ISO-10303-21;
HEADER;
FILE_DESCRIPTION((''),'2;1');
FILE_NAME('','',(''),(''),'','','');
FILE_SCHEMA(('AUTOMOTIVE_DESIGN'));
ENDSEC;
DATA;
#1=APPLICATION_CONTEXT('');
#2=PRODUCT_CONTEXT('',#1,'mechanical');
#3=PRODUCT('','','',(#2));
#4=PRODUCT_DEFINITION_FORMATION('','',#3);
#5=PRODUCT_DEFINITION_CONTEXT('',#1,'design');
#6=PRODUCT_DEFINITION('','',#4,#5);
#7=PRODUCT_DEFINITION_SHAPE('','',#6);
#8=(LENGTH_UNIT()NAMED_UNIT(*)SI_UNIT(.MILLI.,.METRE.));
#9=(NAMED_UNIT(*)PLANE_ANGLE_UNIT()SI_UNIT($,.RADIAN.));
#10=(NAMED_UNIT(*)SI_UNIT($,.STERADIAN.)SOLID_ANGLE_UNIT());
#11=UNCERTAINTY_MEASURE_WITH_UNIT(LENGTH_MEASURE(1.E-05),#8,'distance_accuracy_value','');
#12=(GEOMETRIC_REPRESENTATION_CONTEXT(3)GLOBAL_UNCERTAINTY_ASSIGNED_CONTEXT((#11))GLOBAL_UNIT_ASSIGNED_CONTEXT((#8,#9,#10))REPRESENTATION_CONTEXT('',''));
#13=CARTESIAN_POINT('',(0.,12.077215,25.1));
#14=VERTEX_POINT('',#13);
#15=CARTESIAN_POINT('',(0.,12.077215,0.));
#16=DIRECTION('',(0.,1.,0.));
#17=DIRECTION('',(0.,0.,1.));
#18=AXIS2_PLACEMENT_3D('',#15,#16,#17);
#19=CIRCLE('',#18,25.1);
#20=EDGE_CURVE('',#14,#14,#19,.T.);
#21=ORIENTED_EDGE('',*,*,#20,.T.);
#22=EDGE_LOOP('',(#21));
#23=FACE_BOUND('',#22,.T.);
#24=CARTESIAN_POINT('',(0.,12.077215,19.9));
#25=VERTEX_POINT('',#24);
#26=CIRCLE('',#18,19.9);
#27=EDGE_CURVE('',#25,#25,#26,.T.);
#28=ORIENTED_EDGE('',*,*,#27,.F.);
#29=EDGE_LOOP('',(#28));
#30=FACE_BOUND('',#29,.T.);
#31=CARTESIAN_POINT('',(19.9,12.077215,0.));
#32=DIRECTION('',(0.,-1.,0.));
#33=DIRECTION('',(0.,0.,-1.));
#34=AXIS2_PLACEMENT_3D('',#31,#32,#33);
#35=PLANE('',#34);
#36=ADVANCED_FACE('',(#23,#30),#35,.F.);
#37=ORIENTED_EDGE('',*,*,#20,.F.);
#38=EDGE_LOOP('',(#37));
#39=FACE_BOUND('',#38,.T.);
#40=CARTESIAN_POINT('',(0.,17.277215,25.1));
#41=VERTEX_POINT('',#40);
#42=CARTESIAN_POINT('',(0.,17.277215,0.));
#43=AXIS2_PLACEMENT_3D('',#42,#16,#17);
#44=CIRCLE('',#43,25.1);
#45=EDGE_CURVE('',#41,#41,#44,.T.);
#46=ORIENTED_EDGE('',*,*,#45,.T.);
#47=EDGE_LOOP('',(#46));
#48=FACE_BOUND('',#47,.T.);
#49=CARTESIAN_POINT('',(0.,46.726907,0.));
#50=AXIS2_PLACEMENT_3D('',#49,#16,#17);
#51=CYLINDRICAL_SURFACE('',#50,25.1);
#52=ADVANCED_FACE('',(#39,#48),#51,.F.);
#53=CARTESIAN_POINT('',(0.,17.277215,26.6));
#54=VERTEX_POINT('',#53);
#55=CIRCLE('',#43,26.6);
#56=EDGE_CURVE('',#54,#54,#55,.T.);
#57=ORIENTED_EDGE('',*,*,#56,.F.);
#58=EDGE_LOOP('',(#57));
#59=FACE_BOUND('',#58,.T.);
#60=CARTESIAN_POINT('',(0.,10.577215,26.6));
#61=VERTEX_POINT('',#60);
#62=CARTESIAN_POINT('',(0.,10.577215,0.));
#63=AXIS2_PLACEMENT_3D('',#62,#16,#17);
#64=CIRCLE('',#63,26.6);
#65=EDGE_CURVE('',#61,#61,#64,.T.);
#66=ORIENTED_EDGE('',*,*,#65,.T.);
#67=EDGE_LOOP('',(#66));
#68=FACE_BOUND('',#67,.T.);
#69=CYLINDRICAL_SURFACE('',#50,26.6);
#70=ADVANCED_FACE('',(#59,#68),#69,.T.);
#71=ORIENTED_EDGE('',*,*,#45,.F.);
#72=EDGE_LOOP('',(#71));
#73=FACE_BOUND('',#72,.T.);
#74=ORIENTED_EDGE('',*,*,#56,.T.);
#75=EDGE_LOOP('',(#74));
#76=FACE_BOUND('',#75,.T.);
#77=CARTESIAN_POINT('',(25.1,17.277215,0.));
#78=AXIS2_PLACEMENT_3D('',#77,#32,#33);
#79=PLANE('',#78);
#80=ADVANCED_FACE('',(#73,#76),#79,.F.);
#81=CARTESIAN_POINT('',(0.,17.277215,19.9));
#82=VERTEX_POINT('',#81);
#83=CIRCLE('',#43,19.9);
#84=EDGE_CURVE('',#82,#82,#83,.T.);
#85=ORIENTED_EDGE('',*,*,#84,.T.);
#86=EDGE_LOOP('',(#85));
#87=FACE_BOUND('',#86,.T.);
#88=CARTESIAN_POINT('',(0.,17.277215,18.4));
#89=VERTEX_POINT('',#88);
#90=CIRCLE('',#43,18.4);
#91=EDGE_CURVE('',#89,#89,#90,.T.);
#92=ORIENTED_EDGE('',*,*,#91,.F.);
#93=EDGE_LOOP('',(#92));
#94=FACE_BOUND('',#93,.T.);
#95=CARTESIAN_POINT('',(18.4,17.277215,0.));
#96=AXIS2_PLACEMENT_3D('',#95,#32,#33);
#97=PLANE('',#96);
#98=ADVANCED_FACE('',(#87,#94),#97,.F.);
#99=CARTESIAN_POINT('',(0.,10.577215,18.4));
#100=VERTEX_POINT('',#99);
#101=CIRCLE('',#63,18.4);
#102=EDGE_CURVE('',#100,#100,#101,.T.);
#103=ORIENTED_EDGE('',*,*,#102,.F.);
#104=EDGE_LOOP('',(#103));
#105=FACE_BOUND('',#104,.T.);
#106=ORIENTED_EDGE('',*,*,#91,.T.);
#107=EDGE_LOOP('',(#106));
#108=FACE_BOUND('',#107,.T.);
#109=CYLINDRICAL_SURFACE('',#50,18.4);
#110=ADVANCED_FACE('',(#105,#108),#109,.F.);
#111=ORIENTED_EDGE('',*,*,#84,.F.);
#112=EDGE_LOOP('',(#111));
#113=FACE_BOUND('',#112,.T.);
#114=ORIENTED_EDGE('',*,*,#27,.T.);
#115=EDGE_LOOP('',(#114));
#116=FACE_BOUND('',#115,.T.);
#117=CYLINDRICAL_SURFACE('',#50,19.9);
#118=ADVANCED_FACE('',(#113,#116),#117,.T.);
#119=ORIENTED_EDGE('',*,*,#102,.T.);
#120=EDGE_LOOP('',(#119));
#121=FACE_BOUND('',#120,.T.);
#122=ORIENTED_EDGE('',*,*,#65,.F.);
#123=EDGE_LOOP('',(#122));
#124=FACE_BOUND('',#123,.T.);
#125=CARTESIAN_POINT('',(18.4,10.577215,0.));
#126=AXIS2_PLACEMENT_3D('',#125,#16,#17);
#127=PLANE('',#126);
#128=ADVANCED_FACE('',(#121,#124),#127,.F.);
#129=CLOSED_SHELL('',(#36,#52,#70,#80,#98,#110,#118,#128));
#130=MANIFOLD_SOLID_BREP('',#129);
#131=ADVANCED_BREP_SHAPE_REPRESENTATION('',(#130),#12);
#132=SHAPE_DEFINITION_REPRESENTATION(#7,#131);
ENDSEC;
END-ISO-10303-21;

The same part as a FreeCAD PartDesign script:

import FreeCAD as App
import Part
import Sketcher

V = App.Vector
Q = App.Units.Quantity


def add_polygon(sketch, points):
    """Adds a closed chain of lines whose ends are joined by coincident constraints."""
    first, n = sketch.GeometryCount, len(points)
    for a, b in zip(points, points[1:] + points[:1]):
        sketch.addGeometry(Part.LineSegment(App.Vector(*a, 0), App.Vector(*b, 0)), False)
    for i in range(n):
        sketch.addConstraint(Sketcher.Constraint("Coincident", first + i, 2, first + (i + 1) % n, 1))

doc = App.newDocument("Part")
body = doc.addObject("PartDesign::Body", "Body")

# Sketch on XY plane
sketch1 = doc.addObject("Sketcher::SketchObject", "Sketch")
body.addObject(sketch1)
sketch1.AttachmentSupport = (doc.XY_Plane, [""])
sketch1.MapMode = "FlatFace"
add_polygon(sketch1, [(19.9, 12.1), (19.9, 17.3), (18.4, 17.3), (18.4, 10.6), (26.6, 10.6), (26.6, 17.3), (25.1, 17.3), (25.1, 12.1)])  # lines 0-7
sketch1.addConstraint([
    Sketcher.Constraint("Vertical", 0),
    Sketcher.Constraint("Horizontal", 1),
    Sketcher.Constraint("Vertical", 2),
    Sketcher.Constraint("Horizontal", 3),
    Sketcher.Constraint("Vertical", 4),
    Sketcher.Constraint("Horizontal", 5),
    Sketcher.Constraint("Vertical", 6),
    Sketcher.Constraint("Horizontal", 7),
    Sketcher.Constraint("Horizontal", 1, 2, 4, 2),
    Sketcher.Constraint("Equal", 1, 5),
    Sketcher.Constraint("Equal", 7, 0),
    Sketcher.Constraint("DistanceX", 1, 2, 1, 1, Q("1.5 mm")),
    Sketcher.Constraint("DistanceX", 3, 1, 3, 2, Q("8.2 mm")),
    Sketcher.Constraint("DistanceY", 2, 2, 2, 1, Q("6.7 mm")),
    Sketcher.Constraint("DistanceX", -1, 1, 0, 2, Q("19.9 mm")),
    Sketcher.Constraint("DistanceY", -1, 1, 0, 2, Q("17.277215 mm")),
])
revolution = doc.addObject("PartDesign::Revolution", "Revolution")
body.addObject(revolution)
revolution.Profile = sketch1
revolution.ReferenceAxis = (sketch1, ["V_Axis"])
revolution.Angle = 360

doc.recompute()
